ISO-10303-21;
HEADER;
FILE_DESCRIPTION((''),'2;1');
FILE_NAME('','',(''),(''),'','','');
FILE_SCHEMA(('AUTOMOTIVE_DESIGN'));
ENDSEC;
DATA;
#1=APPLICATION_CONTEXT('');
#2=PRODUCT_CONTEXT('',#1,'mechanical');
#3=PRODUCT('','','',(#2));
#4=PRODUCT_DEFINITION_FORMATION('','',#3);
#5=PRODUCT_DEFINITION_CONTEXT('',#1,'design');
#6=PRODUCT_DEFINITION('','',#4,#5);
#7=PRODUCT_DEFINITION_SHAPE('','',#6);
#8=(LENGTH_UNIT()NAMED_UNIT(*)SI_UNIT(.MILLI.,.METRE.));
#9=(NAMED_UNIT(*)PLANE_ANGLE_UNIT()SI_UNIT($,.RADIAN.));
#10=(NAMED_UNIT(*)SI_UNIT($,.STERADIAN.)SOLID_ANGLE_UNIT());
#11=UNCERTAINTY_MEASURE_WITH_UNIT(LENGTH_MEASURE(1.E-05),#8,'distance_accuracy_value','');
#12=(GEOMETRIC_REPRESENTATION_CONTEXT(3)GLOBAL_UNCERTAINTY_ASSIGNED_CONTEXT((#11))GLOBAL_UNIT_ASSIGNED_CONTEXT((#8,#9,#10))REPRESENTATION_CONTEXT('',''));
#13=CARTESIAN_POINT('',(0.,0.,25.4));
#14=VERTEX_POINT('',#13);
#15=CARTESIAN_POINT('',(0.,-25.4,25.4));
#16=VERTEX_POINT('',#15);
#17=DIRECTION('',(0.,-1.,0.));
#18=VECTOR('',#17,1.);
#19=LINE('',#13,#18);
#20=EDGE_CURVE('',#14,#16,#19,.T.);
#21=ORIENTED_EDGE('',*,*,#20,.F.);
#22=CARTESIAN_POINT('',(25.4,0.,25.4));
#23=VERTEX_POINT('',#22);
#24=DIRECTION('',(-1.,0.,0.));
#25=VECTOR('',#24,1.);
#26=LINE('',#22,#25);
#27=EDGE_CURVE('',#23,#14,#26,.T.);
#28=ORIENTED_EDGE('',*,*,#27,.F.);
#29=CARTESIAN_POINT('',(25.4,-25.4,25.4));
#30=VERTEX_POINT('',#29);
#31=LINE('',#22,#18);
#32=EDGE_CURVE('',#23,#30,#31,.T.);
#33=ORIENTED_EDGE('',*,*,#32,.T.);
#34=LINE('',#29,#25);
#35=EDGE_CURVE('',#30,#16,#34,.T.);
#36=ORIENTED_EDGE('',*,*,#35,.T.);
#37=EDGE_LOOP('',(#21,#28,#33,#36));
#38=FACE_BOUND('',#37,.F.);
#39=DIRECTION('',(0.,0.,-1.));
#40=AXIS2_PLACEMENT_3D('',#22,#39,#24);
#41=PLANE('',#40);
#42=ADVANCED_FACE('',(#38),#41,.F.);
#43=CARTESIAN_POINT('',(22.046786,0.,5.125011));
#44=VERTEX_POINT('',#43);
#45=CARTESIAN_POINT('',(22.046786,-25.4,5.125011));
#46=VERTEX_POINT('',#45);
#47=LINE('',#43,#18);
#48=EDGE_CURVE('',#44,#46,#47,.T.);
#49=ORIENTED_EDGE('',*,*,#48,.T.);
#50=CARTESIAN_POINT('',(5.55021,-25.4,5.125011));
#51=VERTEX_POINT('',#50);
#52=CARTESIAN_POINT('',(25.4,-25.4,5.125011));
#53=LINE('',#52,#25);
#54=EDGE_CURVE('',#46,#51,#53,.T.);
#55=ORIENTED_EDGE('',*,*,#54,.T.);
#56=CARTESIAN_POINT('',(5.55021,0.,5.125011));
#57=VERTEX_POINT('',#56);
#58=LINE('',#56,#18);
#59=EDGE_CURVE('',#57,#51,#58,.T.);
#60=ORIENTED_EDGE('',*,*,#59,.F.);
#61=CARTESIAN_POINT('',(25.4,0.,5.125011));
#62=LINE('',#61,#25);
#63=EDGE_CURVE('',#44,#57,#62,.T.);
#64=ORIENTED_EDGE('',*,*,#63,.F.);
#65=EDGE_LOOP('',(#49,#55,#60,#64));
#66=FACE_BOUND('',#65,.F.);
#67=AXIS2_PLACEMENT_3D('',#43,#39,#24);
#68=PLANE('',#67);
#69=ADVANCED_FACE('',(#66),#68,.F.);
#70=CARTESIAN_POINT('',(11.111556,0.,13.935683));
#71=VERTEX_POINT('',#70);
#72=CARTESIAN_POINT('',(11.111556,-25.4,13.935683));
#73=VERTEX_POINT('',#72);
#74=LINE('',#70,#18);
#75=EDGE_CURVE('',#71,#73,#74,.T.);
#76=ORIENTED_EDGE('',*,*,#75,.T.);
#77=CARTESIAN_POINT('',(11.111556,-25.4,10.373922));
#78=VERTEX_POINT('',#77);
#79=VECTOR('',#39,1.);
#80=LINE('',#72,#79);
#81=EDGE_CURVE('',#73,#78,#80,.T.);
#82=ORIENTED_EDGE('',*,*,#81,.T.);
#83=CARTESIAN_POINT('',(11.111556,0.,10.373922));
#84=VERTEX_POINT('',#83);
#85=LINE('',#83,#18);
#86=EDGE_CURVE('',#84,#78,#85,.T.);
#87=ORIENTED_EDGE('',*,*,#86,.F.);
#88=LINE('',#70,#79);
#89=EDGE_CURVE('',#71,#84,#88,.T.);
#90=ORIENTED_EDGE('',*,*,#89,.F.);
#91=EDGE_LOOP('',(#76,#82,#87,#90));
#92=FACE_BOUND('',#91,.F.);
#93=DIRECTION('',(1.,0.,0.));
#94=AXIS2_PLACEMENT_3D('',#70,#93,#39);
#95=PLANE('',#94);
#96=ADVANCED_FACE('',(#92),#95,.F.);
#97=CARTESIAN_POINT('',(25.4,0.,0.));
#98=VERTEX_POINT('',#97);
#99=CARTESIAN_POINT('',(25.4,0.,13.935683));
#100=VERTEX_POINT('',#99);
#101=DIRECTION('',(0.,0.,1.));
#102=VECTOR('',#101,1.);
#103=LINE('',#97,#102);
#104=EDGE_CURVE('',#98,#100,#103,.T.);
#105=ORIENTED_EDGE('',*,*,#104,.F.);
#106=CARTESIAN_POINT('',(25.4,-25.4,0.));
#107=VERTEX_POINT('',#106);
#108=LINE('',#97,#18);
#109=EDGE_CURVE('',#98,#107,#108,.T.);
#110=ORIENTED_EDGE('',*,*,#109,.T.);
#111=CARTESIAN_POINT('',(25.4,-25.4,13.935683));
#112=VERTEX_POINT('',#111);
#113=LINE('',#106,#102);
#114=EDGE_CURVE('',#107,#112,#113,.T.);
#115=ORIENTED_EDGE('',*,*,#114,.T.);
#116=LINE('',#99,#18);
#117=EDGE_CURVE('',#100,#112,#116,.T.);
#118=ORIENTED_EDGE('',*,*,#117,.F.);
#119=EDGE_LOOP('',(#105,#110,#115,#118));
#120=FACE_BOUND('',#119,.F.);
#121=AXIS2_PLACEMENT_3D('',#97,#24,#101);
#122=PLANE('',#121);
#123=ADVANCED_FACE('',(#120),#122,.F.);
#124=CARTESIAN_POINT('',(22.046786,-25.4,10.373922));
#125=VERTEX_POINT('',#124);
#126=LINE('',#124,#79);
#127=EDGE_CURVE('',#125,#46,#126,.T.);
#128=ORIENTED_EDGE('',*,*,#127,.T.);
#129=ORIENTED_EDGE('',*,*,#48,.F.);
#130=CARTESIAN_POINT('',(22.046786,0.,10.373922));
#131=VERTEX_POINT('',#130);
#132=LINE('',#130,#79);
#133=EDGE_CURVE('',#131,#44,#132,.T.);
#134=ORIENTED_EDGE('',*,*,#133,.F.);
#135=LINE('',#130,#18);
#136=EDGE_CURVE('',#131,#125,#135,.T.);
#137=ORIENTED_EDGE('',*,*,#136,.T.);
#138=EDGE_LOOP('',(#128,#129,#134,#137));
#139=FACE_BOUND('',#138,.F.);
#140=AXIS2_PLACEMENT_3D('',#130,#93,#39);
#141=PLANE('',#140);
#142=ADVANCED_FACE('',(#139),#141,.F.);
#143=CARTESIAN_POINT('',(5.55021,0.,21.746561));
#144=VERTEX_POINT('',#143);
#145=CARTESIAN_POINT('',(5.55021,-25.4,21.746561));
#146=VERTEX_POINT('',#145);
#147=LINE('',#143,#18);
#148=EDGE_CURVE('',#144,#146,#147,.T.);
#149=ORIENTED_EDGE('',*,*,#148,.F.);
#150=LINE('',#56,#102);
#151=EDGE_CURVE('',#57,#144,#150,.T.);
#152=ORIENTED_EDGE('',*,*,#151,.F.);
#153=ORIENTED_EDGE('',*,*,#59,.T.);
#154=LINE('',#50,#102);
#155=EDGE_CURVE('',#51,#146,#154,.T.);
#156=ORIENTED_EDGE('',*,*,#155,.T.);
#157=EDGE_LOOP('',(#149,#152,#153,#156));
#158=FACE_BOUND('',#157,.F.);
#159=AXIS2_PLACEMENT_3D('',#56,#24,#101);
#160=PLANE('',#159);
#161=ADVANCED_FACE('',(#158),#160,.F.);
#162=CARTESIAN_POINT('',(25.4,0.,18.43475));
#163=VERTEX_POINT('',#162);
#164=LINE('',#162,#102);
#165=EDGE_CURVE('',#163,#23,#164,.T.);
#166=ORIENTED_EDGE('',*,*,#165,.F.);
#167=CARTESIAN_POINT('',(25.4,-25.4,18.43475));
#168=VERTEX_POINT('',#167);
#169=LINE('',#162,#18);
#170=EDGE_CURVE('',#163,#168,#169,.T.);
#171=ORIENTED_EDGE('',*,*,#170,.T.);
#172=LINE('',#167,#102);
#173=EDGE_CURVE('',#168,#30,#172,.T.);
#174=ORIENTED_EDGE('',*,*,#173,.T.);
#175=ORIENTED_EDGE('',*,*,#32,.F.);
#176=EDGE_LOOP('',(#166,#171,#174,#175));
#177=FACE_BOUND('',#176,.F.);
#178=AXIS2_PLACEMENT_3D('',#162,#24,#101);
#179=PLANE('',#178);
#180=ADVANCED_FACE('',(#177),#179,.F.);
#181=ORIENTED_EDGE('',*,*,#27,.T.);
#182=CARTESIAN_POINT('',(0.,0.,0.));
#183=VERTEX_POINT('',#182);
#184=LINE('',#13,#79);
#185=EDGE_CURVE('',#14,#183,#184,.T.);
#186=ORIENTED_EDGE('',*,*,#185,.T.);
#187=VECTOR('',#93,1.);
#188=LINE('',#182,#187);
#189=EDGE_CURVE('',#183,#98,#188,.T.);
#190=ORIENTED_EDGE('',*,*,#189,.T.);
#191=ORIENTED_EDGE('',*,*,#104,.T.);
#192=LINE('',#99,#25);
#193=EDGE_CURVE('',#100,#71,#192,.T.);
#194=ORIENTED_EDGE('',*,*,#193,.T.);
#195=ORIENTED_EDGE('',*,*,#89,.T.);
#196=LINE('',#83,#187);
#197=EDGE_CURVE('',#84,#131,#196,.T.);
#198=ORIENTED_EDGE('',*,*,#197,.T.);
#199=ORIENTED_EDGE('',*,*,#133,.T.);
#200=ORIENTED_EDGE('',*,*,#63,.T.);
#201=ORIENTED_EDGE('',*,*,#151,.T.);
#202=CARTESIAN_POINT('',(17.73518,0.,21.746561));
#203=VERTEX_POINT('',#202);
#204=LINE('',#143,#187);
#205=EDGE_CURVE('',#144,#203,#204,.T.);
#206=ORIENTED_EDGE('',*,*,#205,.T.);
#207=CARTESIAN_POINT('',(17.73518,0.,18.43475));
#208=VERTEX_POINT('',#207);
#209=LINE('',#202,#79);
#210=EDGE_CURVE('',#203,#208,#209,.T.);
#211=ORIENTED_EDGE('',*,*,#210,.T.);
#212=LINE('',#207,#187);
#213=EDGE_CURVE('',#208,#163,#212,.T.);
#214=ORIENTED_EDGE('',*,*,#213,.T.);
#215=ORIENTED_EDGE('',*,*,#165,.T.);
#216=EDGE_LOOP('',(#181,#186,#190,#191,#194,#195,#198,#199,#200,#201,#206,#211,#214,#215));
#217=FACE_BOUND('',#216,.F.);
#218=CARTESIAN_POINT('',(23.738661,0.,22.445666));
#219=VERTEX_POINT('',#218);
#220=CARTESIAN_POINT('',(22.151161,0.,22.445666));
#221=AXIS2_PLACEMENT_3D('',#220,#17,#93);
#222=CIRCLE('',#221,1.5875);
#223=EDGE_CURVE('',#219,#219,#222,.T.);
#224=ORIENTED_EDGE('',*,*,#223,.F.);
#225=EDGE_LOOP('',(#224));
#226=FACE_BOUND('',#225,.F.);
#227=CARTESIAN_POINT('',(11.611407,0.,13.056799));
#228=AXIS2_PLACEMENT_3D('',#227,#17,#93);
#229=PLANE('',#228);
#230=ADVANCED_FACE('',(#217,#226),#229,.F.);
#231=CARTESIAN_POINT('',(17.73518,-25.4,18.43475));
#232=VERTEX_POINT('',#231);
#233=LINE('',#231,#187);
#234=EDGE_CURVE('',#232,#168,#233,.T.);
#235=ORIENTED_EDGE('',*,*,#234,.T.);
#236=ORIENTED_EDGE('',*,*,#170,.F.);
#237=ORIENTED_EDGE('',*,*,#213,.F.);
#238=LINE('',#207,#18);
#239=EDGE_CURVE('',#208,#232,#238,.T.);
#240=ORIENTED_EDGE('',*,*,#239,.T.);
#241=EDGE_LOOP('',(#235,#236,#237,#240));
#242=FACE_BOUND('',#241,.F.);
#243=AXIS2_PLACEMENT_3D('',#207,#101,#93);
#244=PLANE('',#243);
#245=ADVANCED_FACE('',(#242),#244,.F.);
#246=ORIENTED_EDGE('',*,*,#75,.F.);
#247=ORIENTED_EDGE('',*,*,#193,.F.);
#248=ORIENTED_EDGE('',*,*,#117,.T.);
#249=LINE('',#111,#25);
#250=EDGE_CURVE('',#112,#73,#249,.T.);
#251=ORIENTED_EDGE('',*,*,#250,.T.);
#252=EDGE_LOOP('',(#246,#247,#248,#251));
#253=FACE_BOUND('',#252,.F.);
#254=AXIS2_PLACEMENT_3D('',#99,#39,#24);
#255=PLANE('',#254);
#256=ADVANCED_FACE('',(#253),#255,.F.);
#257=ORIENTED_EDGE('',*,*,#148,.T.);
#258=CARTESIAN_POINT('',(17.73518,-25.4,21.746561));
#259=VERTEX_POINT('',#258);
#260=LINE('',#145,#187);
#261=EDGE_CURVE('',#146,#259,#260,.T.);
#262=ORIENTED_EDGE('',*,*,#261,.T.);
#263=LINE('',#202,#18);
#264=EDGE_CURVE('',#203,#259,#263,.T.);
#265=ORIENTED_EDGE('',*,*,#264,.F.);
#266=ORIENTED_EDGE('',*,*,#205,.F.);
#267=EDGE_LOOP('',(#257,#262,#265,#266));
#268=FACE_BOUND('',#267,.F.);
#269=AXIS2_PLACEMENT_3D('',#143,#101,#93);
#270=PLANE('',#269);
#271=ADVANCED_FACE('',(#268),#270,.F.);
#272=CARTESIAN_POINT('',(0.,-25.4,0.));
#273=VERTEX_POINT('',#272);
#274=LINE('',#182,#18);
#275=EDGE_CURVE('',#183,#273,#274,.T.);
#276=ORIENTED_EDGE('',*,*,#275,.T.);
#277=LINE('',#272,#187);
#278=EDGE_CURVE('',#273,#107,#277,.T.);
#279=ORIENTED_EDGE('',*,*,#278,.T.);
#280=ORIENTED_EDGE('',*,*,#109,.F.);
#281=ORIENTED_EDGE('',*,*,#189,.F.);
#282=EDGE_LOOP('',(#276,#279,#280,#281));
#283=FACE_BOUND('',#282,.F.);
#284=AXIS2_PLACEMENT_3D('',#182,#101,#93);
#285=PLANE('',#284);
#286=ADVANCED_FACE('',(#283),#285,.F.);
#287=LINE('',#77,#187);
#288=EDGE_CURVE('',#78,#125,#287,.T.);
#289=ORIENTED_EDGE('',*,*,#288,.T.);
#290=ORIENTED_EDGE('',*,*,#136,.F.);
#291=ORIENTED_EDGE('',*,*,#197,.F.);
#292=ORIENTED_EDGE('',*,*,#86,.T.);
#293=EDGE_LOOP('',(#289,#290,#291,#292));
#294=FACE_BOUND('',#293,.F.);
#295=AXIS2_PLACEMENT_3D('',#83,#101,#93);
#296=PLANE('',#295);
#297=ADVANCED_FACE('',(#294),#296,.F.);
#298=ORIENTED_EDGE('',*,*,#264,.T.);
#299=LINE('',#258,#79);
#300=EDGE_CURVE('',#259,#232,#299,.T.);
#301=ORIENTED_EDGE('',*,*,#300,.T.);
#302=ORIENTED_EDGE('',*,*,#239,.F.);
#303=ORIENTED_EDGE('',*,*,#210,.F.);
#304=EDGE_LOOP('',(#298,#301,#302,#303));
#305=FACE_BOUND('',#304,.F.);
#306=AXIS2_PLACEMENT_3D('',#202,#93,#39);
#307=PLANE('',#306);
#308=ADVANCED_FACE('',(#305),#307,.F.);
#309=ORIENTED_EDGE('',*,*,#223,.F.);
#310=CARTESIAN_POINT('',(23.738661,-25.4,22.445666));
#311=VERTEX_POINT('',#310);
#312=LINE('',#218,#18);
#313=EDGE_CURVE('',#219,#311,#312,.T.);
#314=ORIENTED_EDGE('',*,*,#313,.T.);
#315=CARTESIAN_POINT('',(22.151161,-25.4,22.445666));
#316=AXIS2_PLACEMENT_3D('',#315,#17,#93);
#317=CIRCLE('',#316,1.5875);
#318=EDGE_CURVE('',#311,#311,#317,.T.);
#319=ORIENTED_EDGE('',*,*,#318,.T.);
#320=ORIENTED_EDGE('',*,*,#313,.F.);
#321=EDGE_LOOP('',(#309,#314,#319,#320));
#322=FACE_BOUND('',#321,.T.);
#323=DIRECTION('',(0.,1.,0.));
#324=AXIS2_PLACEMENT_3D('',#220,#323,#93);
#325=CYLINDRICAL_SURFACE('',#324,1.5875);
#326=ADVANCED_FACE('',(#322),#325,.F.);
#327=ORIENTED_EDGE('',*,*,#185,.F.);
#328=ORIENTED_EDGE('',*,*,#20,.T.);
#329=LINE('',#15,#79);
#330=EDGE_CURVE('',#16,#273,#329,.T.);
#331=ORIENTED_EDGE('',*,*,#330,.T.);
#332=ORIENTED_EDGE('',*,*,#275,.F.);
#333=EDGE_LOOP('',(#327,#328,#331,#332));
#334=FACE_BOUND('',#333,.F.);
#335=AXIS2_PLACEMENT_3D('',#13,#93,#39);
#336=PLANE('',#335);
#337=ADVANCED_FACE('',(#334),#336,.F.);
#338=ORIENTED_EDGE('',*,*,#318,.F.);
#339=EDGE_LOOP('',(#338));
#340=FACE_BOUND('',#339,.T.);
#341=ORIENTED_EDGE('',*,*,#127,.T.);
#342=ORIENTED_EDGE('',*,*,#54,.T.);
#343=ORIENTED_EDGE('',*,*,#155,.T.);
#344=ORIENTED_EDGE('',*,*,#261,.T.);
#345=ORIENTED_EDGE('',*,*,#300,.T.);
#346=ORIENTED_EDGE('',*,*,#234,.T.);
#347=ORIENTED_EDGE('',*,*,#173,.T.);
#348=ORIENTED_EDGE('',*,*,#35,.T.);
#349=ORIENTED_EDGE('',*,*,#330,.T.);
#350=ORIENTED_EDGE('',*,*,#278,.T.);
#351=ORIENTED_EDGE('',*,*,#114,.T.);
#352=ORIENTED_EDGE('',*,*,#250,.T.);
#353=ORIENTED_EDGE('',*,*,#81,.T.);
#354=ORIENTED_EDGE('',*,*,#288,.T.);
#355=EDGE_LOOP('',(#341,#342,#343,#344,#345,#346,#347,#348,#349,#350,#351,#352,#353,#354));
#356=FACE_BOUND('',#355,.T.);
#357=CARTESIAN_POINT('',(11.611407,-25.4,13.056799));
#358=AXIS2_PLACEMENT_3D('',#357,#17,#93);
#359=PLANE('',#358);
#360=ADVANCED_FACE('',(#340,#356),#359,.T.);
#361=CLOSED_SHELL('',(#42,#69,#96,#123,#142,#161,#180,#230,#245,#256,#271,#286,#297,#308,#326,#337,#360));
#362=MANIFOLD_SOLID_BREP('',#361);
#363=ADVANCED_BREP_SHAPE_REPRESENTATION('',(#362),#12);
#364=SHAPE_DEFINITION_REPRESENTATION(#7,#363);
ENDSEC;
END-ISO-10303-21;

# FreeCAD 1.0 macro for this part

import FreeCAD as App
import Part
import Sketcher
from FreeCAD import Vector
Q = App.Units.Quantity


def add_polygon(sketch, points):
    """Adds a closed chain of lines whose ends are joined by coincident constraints."""
    first, n = sketch.GeometryCount, len(points)
    for a, b in zip(points, points[1:] + points[:1]):
        sketch.addGeometry(Part.LineSegment(App.Vector(*a, 0), App.Vector(*b, 0)), False)
    for i in range(n):
        sketch.addConstraint(Sketcher.Constraint("Coincident", first + i, 2, first + (i + 1) % n, 1))

doc = App.newDocument("Part")
params = doc.addObject("Spreadsheet::Sheet", "Params")
for row, (alias, value) in enumerate([
    ("sketch1_width", "1 in"),
    ("sketch1_diameter", "0.125 in"),
    ("pad1_length", "1 in"),
], start=1):
    params.set(f"A{row}", alias)
    params.set(f"B{row}", "=" + value)
    params.setAlias(f"B{row}", alias)

body = doc.addObject("PartDesign::Body", "Body")

# Sketch on XZ plane
sketch1 = doc.addObject("Sketcher::SketchObject", "Sketch")
body.addObject(sketch1)
sketch1.AttachmentSupport = (doc.XZ_Plane, [""])
sketch1.MapMode = "FlatFace"
add_polygon(sketch1, [(0, 25.4), (0, 0), (25.4, 0), (25.4, 13.9), (11.1, 13.9), (11.1, 10.4), (22, 10.4), (22, 5.1), (5.6, 5.1), (5.6, 21.7), (17.7, 21.7), (17.7, 18.4), (25.4, 18.4), (25.4, 25.4)])  # lines 0-13
sketch1.addGeometry(Part.Circle(Vector(22.2, 22.4, 0), Vector(0, 0, 1), 1.6), False)  # 14
sketch1.addConstraint([
    Sketcher.Constraint("Vertical", 0),
    Sketcher.Constraint("Horizontal", 1),
    Sketcher.Constraint("Vertical", 2),
    Sketcher.Constraint("Horizontal", 3),
    Sketcher.Constraint("Vertical", 4),
    Sketcher.Constraint("Horizontal", 5),
    Sketcher.Constraint("Vertical", 6),
    Sketcher.Constraint("Horizontal", 7),
    Sketcher.Constraint("Vertical", 8),
    Sketcher.Constraint("Horizontal", 9),
    Sketcher.Constraint("Vertical", 10),
    Sketcher.Constraint("Horizontal", 11),
    Sketcher.Constraint("Vertical", 12),
    Sketcher.Constraint("Horizontal", 13),
    Sketcher.Constraint("Coincident", 0, 2, -1, 1),
    Sketcher.Constraint("Vertical", 2, 2, 11, 2),
    Sketcher.Constraint("Equal", 13, 0),
    Sketcher.Constraint("DistanceX", 1, 1, 1, 2, Q("1 in")),
    Sketcher.Constraint("Diameter", 14, Q("0.125 in")),
    Sketcher.Constraint("DistanceX", 5, 1, 5, 2, Q("10.93523 mm")),
    Sketcher.Constraint("DistanceX", 9, 1, 9, 2, Q("12.18497 mm")),
    Sketcher.Constraint("DistanceX", 11, 1, 11, 2, Q("7.66482 mm")),
    Sketcher.Constraint("DistanceY", 4, 2, 4, 1, Q("3.561761 mm")),
    Sketcher.Constraint("DistanceY", 6, 2, 6, 1, Q("5.248911 mm")),
    Sketcher.Constraint("DistanceY", 8, 1, 8, 2, Q("16.62155 mm")),
    Sketcher.Constraint("DistanceY", 10, 2, 10, 1, Q("3.311811 mm")),
    Sketcher.Constraint("DistanceY", 12, 1, 12, 2, Q("6.96525 mm")),
    Sketcher.Constraint("DistanceX", 3, 2, 3, 1, Q("14.288444 mm")),
    Sketcher.Constraint("DistanceX", -1, 1, 14, 3, Q("22.151161 mm")),
    Sketcher.Constraint("DistanceY", -1, 1, 14, 3, Q("22.445666 mm")),
])
sketch1.setExpression("Constraints[31]", "Params.sketch1_width")
sketch1.setExpression("Constraints[32]", "Params.sketch1_diameter")
pad1 = doc.addObject("PartDesign::Pad", "Pad")
body.addObject(pad1)
pad1.Profile = sketch1
pad1.setExpression("Length", "Params.pad1_length")

doc.recompute()
